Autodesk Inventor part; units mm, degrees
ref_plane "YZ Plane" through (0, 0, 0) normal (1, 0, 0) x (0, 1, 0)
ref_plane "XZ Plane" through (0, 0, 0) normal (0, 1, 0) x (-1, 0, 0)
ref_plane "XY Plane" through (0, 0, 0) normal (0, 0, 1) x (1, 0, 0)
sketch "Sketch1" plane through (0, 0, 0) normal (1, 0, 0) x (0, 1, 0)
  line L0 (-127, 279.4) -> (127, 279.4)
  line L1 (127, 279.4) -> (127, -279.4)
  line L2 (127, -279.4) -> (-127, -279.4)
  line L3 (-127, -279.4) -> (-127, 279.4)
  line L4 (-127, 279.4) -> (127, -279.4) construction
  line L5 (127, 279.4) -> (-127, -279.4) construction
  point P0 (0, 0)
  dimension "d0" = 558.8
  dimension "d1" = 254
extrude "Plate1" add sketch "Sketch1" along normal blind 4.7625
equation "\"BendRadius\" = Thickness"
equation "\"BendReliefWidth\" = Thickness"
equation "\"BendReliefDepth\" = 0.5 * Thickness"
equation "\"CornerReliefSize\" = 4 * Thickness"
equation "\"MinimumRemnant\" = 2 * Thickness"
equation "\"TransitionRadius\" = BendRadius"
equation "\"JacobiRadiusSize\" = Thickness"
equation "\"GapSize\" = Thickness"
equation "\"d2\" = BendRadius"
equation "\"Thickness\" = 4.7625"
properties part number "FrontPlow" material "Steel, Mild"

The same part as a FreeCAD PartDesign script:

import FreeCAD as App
import Part
import Sketcher

V = App.Vector
Q = App.Units.Quantity


def add_polygon(sketch, points):
    """Adds a closed chain of lines whose ends are joined by coincident constraints."""
    first, n = sketch.GeometryCount, len(points)
    for a, b in zip(points, points[1:] + points[:1]):
        sketch.addGeometry(Part.LineSegment(App.Vector(*a, 0), App.Vector(*b, 0)), False)
    for i in range(n):
        sketch.addConstraint(Sketcher.Constraint("Coincident", first + i, 2, first + (i + 1) % n, 1))

doc = App.newDocument("Part")
body = doc.addObject("PartDesign::Body", "Body")

sketch1 = body.newObject("Sketcher::SketchObject", "Sketch")
sketch1.AttachmentSupport = (doc.getObject("YZ_Plane"), [""])
sketch1.MapMode = "FlatFace"
add_polygon(sketch1, [(127, 279), (-127, 279), (-127, -279), (127, -279)])
sketch1.addConstraint(Sketcher.Constraint("Horizontal", 0))
sketch1.addConstraint(Sketcher.Constraint("Vertical", 1))
sketch1.addConstraint(Sketcher.Constraint("Horizontal", 2))
sketch1.addConstraint(Sketcher.Constraint("Vertical", 3))
sketch1.addConstraint(Sketcher.Constraint("Symmetric", 0, 2, 2, 2, -1, 1))
sketch1.addConstraint(Sketcher.Constraint("DistanceX", 0, 2, 0, 1, Q("10 in")))
sketch1.addConstraint(Sketcher.Constraint("DistanceY", 1, 2, 1, 1, Q("22 in")))
pad1 = body.newObject("PartDesign::Pad", "Pad")
pad1.Profile = sketch1
pad1.Length = Q("0.1875 in")

doc.recompute()
